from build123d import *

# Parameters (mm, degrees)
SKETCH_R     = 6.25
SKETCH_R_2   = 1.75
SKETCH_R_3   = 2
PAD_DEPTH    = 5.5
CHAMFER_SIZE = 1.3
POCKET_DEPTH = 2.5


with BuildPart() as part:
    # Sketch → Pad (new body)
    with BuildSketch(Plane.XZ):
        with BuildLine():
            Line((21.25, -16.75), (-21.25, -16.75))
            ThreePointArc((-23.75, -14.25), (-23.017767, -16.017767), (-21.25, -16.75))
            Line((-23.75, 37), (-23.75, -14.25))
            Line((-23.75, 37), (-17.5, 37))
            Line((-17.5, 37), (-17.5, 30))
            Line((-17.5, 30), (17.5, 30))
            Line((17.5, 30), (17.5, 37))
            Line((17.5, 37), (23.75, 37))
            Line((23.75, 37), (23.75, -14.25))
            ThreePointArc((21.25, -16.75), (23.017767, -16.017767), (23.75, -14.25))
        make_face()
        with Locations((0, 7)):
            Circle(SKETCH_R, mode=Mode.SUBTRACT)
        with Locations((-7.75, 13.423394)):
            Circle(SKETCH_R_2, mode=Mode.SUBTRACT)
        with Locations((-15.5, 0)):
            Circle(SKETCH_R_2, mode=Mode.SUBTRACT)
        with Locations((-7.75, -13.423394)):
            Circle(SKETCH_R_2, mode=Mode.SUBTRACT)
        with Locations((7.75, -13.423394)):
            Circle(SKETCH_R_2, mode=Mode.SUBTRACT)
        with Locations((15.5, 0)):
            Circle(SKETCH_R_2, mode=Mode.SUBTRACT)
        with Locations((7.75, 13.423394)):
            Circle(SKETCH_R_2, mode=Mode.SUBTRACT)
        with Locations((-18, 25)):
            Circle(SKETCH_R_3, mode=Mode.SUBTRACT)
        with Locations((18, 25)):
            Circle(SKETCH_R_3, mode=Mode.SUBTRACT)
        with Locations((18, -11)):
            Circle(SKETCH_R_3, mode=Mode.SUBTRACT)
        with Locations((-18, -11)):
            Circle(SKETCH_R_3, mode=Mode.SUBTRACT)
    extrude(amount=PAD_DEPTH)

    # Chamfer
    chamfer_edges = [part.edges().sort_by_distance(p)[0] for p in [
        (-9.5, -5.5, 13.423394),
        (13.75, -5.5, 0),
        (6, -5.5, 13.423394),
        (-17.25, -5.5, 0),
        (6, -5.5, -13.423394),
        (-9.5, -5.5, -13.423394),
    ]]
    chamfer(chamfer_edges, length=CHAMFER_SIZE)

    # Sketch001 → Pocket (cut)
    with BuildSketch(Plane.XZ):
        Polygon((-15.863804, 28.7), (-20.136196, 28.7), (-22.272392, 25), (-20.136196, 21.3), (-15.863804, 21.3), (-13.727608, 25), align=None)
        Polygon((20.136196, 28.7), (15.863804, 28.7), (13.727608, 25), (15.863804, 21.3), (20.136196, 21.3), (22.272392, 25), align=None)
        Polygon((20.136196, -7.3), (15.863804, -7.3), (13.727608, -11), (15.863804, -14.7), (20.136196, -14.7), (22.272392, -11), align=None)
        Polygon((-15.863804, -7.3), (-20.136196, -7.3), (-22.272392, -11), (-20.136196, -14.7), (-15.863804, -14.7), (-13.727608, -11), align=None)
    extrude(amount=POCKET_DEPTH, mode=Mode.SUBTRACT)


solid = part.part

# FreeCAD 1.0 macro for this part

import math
import FreeCAD as App
import Part
import Sketcher
Q = App.Units.Quantity


def edges_at(feature, points):
    """Names of the edges that pass closest to the given points."""
    edges = feature.Shape.Edges
    near = lambda p: min(range(len(edges)), key=lambda i: edges[i].distToShape(Part.Vertex(*p))[0])
    return sorted({f"Edge{near(p) + 1}" for p in points})


def add_polygon(sketch, points):
    """Adds a closed chain of lines whose ends are joined by coincident constraints."""
    first, n = sketch.GeometryCount, len(points)
    for a, b in zip(points, points[1:] + points[:1]):
        sketch.addGeometry(Part.LineSegment(App.Vector(*a, 0), App.Vector(*b, 0)), False)
    for i in range(n):
        sketch.addConstraint(Sketcher.Constraint("Coincident", first + i, 2, first + (i + 1) % n, 1))

doc = App.newDocument("Part")
body = doc.addObject("PartDesign::Body", "Body")

# Sketch on XZ plane
sketch1 = doc.addObject("Sketcher::SketchObject", "Sketch")
body.addObject(sketch1)
sketch1.AttachmentSupport = (doc.XZ_Plane, [""])
sketch1.MapMode = "FlatFace"
sketch1.addGeometry([
    Part.LineSegment(App.Vector(-21.2, -16.8, 0), App.Vector(21.2, -16.8, 0)),  # 0
    Part.ArcOfCircle(Part.Circle(App.Vector(21.3, -14.3, 0), App.Vector(0, 0, 1), 2.5), math.radians(-90), math.radians(0)),  # 1
    Part.LineSegment(App.Vector(23.8, -14.2, 0), App.Vector(23.8, 37, 0)),  # 2
    Part.LineSegment(App.Vector(23.8, 37, 0), App.Vector(17.5, 37, 0)),  # 3
    Part.LineSegment(App.Vector(17.5, 37, 0), App.Vector(17.5, 30, 0)),  # 4
    Part.LineSegment(App.Vector(17.5, 30, 0), App.Vector(-17.5, 30, 0)),  # 5
    Part.LineSegment(App.Vector(-17.5, 30, 0), App.Vector(-17.5, 37, 0)),  # 6
    Part.LineSegment(App.Vector(-17.5, 37, 0), App.Vector(-23.8, 37, 0)),  # 7
    Part.LineSegment(App.Vector(-23.8, 37, 0), App.Vector(-23.8, -14.2, 0)),  # 8
    Part.ArcOfCircle(Part.Circle(App.Vector(-21.3, -14.3, 0), App.Vector(0, 0, 1), 2.5), math.radians(180), math.radians(270)),  # 9
    Part.Circle(App.Vector(18, -11, 0), App.Vector(0, 0, 1), 2),  # 10
    Part.Circle(App.Vector(7.8, -13.4, 0), App.Vector(0, 0, 1), 1.8),  # 11
    Part.Circle(App.Vector(15.5, 0, 0), App.Vector(0, 0, 1), 1.8),  # 12
    Part.Circle(App.Vector(-7.8, -13.4, 0), App.Vector(0, 0, 1), 1.8),  # 13
    Part.Circle(App.Vector(-18, -11, 0), App.Vector(0, 0, 1), 2),  # 14
    Part.Circle(App.Vector(-15.5, 0, 0), App.Vector(0, 0, 1), 1.8),  # 15
    Part.Circle(App.Vector(7.8, 13.4, 0), App.Vector(0, 0, 1), 1.8),  # 16
    Part.Circle(App.Vector(18, 25, 0), App.Vector(0, 0, 1), 2),  # 17
    Part.Circle(App.Vector(0, 7, 0), App.Vector(0, 0, 1), 6.2),  # 18
    Part.Circle(App.Vector(-7.8, 13.4, 0), App.Vector(0, 0, 1), 1.8),  # 19
    Part.Circle(App.Vector(-18, 25, 0), App.Vector(0, 0, 1), 2),  # 20
], False)
sketch1.addConstraint([
    Sketcher.Constraint("Tangent", 0, 2, 1, 1),
    Sketcher.Constraint("Tangent", 1, 2, 2, 1),
    Sketcher.Constraint("Coincident", 2, 2, 3, 1),
    Sketcher.Constraint("Coincident", 3, 2, 4, 1),
    Sketcher.Constraint("Coincident", 4, 2, 5, 1),
    Sketcher.Constraint("Coincident", 5, 2, 6, 1),
    Sketcher.Constraint("Coincident", 6, 2, 7, 1),
    Sketcher.Constraint("Coincident", 7, 2, 8, 1),
    Sketcher.Constraint("Tangent", 8, 2, 9, 1),
    Sketcher.Constraint("Tangent", 9, 2, 0, 1),
    Sketcher.Constraint("Horizontal", 0),
    Sketcher.Constraint("Vertical", 2),
    Sketcher.Constraint("Horizontal", 3),
    Sketcher.Constraint("Vertical", 4),
    Sketcher.Constraint("Horizontal", 5),
    Sketcher.Constraint("Vertical", 6),
    Sketcher.Constraint("Horizontal", 7),
    Sketcher.Constraint("Vertical", 8),
    Sketcher.Constraint("Equal", 1, 9),
    Sketcher.Constraint("Equal", 11, 12),
    Sketcher.Constraint("Equal", 12, 13),
    Sketcher.Constraint("Equal", 10, 14),
    Sketcher.Constraint("Equal", 13, 15),
    Sketcher.Constraint("Equal", 15, 16),
    Sketcher.Constraint("Equal", 14, 17),
    Sketcher.Constraint("Equal", 16, 19),
    Sketcher.Constraint("Equal", 17, 20),
    Sketcher.Constraint("Symmetric", 12, 3, 15, 3, -1, 1),
    Sketcher.Constraint("Symmetric", 13, 3, 16, 3, -1, 1),
    Sketcher.Constraint("Symmetric", 11, 3, 19, 3, -1, 1),
    Sketcher.Constraint("Symmetric", 11, 3, 13, 3, -2),
    Sketcher.Constraint("Symmetric", 10, 3, 14, 3, -2),
    Sketcher.Constraint("Symmetric", 17, 3, 20, 3, -2),
    Sketcher.Constraint("Symmetric", 3, 2, 6, 2, -2),
    Sketcher.Constraint("PointOnObject", 12, 3, -1),
    Sketcher.Constraint("PointOnObject", 18, 3, -2),
    Sketcher.Constraint("Vertical", 10, 3, 17, 3),
    Sketcher.Constraint("Equal", 3, 7),
    Sketcher.Constraint("Diameter", 10, Q("4 mm")),
    Sketcher.Constraint("Diameter", 11, Q("3.5 mm")),
    Sketcher.Constraint("Diameter", 18, Q("12.5 mm")),
    Sketcher.Constraint("Radius", 1, Q("2.5 mm")),
    Sketcher.Constraint("DistanceX", 5, 2, 5, 1, Q("35 mm")),
    Sketcher.Constraint("DistanceY", 4, 2, 4, 1, Q("7 mm")),
    Sketcher.Constraint("DistanceX", 0, 1, 0, 2, Q("42.5 mm")),
    Sketcher.Constraint("DistanceX", -1, 1, 10, 3, Q("18 mm")),
    Sketcher.Constraint("DistanceY", 10, 3, -1, 1, Q("11 mm")),
    Sketcher.Constraint("DistanceY", -1, 1, 17, 3, Q("25 mm")),
    Sketcher.Constraint("DistanceY", -1, 1, 18, 3, Q("7 mm")),
    Sketcher.Constraint("DistanceY", -1, 1, 2, 2, Q("37 mm")),
    Sketcher.Constraint("DistanceX", 9, 3, 11, 3, Q("29 mm")),
    Sketcher.Constraint("DistanceX", 15, 3, 12, 3, Q("31 mm")),
    Sketcher.Constraint("DistanceY", 2, 1, 2, 2, Q("51.25 mm")),
    Sketcher.Constraint("DistanceY", 11, 3, 16, 3, Q("26.846788 mm")),
])
pad1 = doc.addObject("PartDesign::Pad", "Pad")
body.addObject(pad1)
pad1.Profile = sketch1
pad1.Length = 5.5
doc.recompute()

chamfer = doc.addObject("PartDesign::Chamfer", "Chamfer")
body.addObject(chamfer)
chamfer.Base = (pad1, edges_at(pad1, [
    (-9.5, -5.5, 13.423),
    (13.75, -5.5, 0),
    (6, -5.5, 13.423),
    (-17.25, -5.5, 0),
    (6, -5.5, -13.423),
    (-9.5, -5.5, -13.423),
]))
chamfer.Size = 1.3

# Sketch on XZ plane
sketch2 = doc.addObject("Sketcher::SketchObject", "Sketch001")
body.addObject(sketch2)
sketch2.AttachmentSupport = (doc.XZ_Plane, [""])
sketch2.MapMode = "FlatFace"
add_polygon(sketch2, [(-15.9, 28.7), (-20.1, 28.7), (-22.3, 25), (-20.1, 21.3), (-15.9, 21.3), (-13.7, 25)])  # lines 0-5
add_polygon(sketch2, [(20.1, 28.7), (15.9, 28.7), (13.7, 25), (15.9, 21.3), (20.1, 21.3), (22.3, 25)])  # lines 6-11
add_polygon(sketch2, [(20.1, -7.3), (15.9, -7.3), (13.7, -11), (15.9, -14.7), (20.1, -14.7), (22.3, -11)])  # lines 12-17
add_polygon(sketch2, [(-15.9, -7.3), (-20.1, -7.3), (-22.3, -11), (-20.1, -14.7), (-15.9, -14.7), (-13.7, -11)])  # lines 18-23
sketch2.addConstraint([
    Sketcher.Constraint("Horizontal", 0),
    Sketcher.Constraint("Horizontal", 3),
    Sketcher.Constraint("Horizontal", 6),
    Sketcher.Constraint("Horizontal", 9),
    Sketcher.Constraint("Horizontal", 12),
    Sketcher.Constraint("Horizontal", 15),
    Sketcher.Constraint("Horizontal", 18),
    Sketcher.Constraint("Horizontal", 21),
    Sketcher.Constraint("Symmetric", 5, 2, 6, 2, -2),
    Sketcher.Constraint("Symmetric", 4, 2, 7, 2, -2),
    Sketcher.Constraint("Symmetric", 3, 2, 8, 2, -2),
    Sketcher.Constraint("Symmetric", 1, 2, 10, 2, -2),
    Sketcher.Constraint("Symmetric", 17, 2, 18, 2, -2),
    Sketcher.Constraint("Symmetric", 16, 2, 19, 2, -2),
    Sketcher.Constraint("Symmetric", 15, 2, 20, 2, -2),
    Sketcher.Constraint("Symmetric", 13, 2, 22, 2, -2),
    Sketcher.Constraint("Parallel", 1, 4),
    Sketcher.Constraint("Parallel", 2, 5),
    Sketcher.Constraint("Parallel", 4, 7),
    Sketcher.Constraint("Parallel", 7, 10),
    Sketcher.Constraint("Parallel", 8, 11),
    Sketcher.Constraint("Parallel", 10, 13),
    Sketcher.Constraint("Parallel", 11, 14),
    Sketcher.Constraint("Parallel", 13, 16),
    Sketcher.Constraint("Parallel", 14, 17),
    Sketcher.Constraint("Parallel", 19, 22),
    Sketcher.Constraint("Parallel", 20, 23),
    Sketcher.Constraint("Horizontal", 1, 2, 4, 2),
    Sketcher.Constraint("Horizontal", 13, 2, 16, 2),
    Sketcher.Constraint("Vertical", 0, 2, 2, 2),
    Sketcher.Constraint("Vertical", 8, 2, 12, 2),
    Sketcher.Constraint("Vertical", 7, 2, 13, 2),
    Sketcher.Constraint("Vertical", 12, 2, 14, 2),
    Sketcher.Constraint("Vertical", 11, 2, 15, 2),
    Sketcher.Constraint("Angle", 1, Q("-120 deg")),
    Sketcher.Constraint("DistanceY", -1, 1, 1, 2, Q("25 mm")),
    Sketcher.Constraint("DistanceY", 13, 2, -1, 1, Q("11 mm")),
    Sketcher.Constraint("DistanceX", 0, 2, 6, 2, Q("36 mm")),
    Sketcher.Constraint("DistanceY", -1, 1, 0, 2, Q("28.7 mm")),
    Sketcher.Constraint("DistanceX", 0, 2, 0, 1, Q("4.272392 mm")),
])
pocket1 = doc.addObject("PartDesign::Pocket", "Pocket")
body.addObject(pocket1)
pocket1.Profile = sketch2
pocket1.Length = 2.5
pocket1.Reversed = True

doc.recompute()
